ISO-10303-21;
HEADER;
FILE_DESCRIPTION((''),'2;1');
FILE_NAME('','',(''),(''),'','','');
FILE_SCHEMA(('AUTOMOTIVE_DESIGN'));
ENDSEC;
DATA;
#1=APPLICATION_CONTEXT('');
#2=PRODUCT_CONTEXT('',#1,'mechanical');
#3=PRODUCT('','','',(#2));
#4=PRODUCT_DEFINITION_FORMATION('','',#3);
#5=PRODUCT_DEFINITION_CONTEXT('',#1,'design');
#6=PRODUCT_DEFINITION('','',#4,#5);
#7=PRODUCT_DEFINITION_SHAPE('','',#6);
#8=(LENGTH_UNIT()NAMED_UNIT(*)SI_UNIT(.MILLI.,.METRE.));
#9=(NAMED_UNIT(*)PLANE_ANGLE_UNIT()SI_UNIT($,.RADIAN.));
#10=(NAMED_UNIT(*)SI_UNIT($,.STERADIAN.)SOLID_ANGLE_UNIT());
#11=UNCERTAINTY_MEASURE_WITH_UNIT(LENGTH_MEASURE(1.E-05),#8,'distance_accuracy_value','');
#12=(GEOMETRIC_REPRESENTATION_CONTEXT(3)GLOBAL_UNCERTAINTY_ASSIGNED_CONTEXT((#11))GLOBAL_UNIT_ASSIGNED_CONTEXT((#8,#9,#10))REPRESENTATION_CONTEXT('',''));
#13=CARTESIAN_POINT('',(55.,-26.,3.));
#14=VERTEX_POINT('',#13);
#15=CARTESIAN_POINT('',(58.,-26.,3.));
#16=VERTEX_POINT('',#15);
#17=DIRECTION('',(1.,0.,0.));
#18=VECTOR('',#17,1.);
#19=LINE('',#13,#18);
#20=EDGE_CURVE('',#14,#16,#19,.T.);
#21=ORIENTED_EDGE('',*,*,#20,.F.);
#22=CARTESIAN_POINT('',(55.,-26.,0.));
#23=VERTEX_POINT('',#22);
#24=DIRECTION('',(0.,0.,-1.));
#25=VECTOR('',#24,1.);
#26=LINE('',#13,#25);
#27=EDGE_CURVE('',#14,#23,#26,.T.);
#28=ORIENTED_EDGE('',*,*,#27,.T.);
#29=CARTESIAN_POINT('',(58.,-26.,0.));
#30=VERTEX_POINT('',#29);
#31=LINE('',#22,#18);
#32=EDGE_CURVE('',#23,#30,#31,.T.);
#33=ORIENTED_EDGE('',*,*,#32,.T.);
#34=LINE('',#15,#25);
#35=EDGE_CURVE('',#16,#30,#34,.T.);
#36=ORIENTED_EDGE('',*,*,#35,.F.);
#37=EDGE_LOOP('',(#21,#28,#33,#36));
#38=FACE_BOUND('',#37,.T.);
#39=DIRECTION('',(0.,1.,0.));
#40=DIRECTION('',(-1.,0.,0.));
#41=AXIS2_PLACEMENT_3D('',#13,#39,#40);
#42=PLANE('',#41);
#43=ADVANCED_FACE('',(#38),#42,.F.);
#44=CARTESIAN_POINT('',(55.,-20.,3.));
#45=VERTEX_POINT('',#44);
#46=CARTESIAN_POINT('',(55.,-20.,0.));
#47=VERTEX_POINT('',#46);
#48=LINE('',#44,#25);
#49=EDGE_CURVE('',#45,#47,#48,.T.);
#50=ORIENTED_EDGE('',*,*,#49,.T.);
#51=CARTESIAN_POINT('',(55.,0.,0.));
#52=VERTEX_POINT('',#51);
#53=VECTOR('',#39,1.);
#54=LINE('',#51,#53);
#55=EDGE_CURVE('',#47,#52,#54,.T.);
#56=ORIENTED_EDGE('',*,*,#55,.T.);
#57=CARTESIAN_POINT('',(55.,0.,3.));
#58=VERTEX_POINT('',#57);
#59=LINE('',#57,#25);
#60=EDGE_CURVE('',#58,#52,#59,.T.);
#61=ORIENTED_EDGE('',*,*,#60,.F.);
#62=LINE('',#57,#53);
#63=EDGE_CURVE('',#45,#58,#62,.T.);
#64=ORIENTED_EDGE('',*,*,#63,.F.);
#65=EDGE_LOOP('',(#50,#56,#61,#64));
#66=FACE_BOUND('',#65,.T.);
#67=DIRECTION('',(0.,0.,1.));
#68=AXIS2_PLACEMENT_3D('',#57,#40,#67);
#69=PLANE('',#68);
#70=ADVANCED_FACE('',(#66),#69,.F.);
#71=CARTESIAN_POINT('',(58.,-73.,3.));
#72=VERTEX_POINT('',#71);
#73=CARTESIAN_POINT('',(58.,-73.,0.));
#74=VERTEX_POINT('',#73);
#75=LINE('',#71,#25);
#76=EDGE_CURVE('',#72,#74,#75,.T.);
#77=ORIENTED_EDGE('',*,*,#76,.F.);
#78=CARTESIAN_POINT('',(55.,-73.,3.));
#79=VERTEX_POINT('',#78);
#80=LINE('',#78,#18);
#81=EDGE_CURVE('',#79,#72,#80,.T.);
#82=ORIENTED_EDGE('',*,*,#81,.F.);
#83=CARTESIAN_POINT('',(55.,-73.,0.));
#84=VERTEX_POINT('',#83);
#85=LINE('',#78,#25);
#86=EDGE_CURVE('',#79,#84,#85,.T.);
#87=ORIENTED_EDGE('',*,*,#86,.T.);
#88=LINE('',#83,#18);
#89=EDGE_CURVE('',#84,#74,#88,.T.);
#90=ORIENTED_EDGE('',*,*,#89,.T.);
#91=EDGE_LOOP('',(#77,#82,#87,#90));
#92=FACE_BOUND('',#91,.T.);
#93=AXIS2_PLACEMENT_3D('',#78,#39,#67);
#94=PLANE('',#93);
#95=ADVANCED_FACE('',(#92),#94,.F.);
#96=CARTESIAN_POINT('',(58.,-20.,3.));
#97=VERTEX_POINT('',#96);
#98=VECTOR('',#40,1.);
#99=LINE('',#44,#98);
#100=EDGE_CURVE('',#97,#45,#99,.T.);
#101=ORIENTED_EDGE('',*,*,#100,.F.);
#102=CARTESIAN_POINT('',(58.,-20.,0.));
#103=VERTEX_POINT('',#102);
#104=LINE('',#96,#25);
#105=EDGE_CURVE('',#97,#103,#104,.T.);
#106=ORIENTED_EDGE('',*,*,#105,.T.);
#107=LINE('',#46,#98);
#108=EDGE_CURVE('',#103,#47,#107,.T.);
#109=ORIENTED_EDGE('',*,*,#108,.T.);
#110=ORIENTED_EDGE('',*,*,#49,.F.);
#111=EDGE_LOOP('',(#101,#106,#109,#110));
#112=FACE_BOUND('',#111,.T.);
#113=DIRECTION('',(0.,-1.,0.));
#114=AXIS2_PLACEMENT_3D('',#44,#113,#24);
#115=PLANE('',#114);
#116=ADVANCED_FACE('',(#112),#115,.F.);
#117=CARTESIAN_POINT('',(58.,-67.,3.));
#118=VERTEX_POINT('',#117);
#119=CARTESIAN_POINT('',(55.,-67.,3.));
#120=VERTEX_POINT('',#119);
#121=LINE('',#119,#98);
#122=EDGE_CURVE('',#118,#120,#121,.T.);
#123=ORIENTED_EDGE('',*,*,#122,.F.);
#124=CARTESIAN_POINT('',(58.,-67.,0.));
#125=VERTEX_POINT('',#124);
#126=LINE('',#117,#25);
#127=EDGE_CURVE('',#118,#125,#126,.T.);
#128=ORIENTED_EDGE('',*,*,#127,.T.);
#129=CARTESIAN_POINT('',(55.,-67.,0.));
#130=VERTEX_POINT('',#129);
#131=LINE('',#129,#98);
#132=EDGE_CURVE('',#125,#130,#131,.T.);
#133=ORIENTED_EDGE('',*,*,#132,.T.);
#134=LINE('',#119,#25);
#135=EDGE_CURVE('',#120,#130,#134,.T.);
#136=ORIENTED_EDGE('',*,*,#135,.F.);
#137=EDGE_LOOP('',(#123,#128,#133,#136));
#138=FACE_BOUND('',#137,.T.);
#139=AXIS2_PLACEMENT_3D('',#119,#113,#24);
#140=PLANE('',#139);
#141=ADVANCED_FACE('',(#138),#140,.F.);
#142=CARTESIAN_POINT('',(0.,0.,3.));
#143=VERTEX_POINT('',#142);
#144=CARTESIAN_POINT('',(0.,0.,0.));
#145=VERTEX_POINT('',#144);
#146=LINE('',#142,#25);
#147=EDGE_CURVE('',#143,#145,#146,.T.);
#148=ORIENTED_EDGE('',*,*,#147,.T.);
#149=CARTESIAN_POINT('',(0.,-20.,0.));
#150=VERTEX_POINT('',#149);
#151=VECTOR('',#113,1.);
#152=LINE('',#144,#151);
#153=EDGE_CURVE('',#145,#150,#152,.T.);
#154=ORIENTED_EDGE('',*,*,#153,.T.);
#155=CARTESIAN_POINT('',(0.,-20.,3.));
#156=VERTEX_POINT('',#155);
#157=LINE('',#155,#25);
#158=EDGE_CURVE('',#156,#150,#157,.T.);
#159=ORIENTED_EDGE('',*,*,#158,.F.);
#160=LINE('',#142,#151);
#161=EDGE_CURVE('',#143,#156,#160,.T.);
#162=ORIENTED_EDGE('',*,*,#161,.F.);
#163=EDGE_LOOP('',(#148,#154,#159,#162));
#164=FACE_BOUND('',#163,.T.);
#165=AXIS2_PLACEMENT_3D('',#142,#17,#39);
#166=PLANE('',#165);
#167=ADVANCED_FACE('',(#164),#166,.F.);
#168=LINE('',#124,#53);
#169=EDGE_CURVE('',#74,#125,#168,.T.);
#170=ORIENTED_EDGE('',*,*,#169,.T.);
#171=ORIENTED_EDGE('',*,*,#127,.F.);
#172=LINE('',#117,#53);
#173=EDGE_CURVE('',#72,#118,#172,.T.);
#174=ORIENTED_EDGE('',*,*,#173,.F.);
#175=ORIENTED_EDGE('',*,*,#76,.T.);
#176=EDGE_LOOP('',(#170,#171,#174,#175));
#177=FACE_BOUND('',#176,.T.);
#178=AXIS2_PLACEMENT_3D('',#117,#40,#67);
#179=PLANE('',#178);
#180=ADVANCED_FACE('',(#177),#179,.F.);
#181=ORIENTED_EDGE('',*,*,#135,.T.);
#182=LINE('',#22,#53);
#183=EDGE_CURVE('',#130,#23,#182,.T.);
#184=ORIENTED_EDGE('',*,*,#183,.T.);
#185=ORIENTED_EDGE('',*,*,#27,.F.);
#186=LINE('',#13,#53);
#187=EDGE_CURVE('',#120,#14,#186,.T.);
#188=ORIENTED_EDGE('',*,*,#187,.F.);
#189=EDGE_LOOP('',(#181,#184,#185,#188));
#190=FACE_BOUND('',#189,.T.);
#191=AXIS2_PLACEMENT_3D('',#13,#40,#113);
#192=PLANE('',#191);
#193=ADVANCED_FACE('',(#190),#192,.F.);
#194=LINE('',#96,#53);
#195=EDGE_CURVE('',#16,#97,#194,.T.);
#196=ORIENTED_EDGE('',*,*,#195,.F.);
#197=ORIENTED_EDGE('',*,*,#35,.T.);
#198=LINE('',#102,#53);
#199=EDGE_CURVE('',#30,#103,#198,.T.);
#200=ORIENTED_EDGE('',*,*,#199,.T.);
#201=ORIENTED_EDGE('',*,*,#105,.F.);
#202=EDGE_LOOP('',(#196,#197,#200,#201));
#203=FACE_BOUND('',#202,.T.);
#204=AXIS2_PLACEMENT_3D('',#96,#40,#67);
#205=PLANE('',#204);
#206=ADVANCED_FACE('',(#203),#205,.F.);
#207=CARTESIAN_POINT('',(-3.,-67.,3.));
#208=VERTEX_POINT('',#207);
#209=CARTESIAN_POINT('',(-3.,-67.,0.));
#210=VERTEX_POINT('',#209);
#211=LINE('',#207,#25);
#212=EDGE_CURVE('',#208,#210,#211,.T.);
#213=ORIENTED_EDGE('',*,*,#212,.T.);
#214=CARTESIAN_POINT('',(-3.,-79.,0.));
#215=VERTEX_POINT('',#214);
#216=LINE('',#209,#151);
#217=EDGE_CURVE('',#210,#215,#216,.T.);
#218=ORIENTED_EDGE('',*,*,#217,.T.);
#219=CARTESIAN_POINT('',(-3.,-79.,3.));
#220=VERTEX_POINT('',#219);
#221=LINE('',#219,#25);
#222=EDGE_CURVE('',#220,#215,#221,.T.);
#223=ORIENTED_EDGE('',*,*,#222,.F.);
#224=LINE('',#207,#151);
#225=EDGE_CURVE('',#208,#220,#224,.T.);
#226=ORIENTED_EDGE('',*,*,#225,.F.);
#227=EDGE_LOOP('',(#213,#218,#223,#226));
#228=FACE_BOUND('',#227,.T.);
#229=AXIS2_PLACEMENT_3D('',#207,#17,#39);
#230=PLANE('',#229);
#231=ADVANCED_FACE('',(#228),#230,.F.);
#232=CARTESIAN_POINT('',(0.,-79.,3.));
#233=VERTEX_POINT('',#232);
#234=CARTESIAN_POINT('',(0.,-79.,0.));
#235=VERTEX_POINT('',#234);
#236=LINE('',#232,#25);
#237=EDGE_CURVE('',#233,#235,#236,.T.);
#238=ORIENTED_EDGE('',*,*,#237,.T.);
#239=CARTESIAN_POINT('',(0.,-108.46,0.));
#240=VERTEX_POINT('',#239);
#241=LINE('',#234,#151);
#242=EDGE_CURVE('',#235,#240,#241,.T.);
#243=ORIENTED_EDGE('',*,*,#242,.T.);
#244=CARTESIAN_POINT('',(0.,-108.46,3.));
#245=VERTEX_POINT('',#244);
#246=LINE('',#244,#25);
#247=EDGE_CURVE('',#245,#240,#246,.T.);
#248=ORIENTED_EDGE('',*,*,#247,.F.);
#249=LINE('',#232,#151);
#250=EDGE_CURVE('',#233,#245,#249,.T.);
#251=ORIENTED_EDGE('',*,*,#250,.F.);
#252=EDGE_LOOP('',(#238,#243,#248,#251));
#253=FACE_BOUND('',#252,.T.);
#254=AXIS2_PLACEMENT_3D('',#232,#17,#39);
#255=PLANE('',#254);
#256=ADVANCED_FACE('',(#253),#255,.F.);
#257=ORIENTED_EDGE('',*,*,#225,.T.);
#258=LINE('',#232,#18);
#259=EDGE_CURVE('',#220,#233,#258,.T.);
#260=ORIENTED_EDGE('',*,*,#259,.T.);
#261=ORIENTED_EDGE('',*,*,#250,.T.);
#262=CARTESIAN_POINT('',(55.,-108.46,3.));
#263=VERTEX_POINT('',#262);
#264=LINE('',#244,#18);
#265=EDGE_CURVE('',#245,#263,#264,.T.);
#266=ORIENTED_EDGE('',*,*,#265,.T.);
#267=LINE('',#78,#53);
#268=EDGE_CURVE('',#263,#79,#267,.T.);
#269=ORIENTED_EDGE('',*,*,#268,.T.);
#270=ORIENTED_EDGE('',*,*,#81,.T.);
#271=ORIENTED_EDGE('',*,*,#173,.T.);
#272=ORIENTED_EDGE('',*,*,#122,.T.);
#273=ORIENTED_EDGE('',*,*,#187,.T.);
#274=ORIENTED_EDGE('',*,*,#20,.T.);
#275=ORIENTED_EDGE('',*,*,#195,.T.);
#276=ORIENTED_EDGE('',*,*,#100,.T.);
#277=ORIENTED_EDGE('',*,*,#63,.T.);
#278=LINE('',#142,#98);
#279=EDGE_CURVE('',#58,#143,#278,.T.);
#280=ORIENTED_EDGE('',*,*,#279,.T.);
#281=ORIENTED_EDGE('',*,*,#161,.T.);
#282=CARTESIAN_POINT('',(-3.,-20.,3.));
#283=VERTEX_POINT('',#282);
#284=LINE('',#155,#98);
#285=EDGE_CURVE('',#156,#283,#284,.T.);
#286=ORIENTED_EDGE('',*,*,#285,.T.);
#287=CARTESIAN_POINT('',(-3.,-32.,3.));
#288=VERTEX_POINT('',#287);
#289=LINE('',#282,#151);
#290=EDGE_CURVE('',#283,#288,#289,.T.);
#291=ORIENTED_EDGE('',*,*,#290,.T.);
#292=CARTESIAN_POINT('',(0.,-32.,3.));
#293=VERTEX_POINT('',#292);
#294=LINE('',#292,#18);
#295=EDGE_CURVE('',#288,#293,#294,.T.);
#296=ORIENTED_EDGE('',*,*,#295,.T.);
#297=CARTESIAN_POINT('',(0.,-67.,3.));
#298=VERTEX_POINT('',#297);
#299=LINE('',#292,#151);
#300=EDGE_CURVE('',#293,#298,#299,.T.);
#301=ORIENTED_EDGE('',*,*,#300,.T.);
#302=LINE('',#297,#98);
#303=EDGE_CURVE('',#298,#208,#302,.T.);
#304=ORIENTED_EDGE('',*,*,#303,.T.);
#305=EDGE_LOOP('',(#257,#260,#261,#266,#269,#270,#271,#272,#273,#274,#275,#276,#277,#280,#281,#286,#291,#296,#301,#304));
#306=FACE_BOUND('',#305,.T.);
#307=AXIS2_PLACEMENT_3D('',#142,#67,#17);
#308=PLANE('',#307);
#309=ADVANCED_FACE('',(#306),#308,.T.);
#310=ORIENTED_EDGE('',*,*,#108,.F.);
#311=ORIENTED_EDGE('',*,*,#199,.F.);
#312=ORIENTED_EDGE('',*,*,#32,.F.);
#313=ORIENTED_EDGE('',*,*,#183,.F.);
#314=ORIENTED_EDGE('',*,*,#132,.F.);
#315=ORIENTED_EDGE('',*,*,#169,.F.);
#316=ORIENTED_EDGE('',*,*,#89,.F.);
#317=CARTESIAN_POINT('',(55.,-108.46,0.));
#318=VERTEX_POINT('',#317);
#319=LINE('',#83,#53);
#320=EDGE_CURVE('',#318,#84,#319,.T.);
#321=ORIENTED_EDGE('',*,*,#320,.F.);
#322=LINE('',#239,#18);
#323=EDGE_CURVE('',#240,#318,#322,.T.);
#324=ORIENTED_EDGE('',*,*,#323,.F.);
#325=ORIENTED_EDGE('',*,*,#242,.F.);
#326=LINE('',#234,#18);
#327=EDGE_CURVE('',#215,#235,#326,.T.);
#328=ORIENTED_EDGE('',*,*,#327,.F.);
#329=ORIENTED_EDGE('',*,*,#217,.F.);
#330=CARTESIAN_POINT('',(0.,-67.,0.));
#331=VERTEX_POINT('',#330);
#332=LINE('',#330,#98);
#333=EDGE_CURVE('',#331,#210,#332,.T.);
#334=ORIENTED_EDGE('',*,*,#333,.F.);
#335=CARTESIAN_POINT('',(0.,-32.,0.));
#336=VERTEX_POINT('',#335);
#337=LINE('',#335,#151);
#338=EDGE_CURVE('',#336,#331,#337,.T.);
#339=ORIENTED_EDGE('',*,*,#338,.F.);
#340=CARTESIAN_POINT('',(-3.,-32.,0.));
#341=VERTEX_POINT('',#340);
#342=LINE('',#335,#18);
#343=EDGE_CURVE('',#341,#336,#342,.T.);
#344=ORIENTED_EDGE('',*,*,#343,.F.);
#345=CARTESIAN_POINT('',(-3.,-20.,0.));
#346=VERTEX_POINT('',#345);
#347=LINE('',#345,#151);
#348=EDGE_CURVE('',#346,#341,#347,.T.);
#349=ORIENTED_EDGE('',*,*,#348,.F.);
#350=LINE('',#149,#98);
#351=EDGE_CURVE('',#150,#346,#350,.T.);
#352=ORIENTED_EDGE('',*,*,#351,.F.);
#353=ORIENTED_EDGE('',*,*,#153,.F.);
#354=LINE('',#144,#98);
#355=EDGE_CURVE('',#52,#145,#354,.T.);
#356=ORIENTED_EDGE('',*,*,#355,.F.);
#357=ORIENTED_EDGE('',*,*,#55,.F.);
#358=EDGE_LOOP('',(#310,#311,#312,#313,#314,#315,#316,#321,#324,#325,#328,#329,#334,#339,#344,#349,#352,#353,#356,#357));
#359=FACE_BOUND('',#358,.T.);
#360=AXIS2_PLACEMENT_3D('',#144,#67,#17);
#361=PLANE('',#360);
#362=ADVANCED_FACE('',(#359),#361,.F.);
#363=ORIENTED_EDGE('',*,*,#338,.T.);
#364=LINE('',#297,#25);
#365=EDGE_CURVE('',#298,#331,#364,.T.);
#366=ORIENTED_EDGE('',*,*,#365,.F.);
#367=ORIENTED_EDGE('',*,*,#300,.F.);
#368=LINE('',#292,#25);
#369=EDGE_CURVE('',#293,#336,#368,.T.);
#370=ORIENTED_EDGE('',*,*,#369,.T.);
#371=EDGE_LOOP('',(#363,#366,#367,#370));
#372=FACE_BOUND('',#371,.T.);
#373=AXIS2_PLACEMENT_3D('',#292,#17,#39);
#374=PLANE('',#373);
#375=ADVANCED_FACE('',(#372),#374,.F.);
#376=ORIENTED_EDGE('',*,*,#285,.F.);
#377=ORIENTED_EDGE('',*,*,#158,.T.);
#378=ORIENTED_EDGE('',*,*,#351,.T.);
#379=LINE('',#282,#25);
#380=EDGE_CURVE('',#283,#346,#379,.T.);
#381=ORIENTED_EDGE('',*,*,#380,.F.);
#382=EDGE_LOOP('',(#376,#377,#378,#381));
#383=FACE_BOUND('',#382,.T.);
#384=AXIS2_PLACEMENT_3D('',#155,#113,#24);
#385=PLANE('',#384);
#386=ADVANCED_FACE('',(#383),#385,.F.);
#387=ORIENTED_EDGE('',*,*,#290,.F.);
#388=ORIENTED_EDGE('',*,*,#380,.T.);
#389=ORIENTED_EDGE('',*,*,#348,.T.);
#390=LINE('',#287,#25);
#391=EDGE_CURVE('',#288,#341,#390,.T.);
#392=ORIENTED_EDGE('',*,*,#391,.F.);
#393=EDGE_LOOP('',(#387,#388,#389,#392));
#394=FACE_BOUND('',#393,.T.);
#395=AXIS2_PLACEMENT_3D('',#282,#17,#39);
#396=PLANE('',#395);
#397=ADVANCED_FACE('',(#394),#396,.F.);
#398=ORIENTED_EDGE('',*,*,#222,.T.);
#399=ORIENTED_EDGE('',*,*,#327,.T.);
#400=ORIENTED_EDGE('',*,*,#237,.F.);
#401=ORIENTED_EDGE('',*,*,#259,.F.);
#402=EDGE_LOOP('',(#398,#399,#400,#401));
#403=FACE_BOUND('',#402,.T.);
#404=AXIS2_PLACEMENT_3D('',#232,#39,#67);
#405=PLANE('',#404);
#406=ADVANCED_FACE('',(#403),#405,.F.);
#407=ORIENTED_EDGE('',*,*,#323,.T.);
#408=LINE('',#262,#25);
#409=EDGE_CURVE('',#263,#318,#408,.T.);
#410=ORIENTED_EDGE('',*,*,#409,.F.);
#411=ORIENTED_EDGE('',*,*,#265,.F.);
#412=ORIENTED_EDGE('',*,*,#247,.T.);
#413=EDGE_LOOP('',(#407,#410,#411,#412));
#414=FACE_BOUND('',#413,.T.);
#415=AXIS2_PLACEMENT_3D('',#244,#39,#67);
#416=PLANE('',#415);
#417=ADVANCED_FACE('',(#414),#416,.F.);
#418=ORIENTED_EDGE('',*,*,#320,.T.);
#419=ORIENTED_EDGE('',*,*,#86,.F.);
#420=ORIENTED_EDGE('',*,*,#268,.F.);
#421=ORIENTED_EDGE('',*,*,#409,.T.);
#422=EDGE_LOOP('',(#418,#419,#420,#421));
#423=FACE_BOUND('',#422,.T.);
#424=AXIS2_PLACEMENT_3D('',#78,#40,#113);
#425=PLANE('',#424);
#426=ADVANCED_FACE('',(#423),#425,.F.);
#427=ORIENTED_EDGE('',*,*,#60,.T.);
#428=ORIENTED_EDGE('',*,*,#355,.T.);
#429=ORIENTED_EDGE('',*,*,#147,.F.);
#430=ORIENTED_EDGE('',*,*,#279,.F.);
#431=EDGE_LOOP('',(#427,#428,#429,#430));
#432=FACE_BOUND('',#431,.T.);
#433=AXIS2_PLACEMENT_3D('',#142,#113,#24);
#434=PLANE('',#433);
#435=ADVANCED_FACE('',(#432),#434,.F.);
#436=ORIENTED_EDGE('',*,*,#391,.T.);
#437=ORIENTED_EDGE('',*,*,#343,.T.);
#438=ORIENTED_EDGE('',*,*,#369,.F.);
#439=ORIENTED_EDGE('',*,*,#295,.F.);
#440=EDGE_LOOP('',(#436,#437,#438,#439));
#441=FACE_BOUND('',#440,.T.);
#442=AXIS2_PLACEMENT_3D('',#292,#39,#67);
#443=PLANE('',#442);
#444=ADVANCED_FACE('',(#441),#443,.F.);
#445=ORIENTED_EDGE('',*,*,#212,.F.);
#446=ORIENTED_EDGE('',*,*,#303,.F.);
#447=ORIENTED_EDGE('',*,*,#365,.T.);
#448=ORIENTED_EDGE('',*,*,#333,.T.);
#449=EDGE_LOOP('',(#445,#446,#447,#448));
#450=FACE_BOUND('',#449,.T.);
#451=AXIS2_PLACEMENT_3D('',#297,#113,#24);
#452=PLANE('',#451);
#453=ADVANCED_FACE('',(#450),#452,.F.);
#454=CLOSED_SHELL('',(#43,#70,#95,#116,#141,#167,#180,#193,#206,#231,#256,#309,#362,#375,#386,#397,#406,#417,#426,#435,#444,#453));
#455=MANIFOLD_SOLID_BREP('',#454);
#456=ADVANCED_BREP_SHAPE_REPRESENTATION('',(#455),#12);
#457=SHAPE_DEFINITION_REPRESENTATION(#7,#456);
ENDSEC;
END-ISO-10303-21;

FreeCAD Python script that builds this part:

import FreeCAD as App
import Part
import Sketcher

doc = App.newDocument("Part")
body = doc.addObject("PartDesign::Body", "Body")

# Sketch on XY plane
sketch1 = body.newObject("Sketcher::SketchObject", "Sketch")
sketch1.AttachmentSupport = (doc.getObject("XY_Plane"), [""])
sketch1.MapMode = "FlatFace"
sketch1.addGeometry([
    Part.LineSegment(App.Vector(55, 0, 0), App.Vector(0, 0, 0)),  # 0
    Part.LineSegment(App.Vector(0, 0, 0), App.Vector(0, -20, 0)),  # 1
    Part.LineSegment(App.Vector(0, -20, 0), App.Vector(-3, -20, 0)),  # 2
    Part.LineSegment(App.Vector(-3, -20, 0), App.Vector(-3, -32, 0)),  # 3
    Part.LineSegment(App.Vector(-3, -32, 0), App.Vector(0, -32, 0)),  # 4
    Part.LineSegment(App.Vector(0, -32, 0), App.Vector(0, -67, 0)),  # 5
    Part.LineSegment(App.Vector(0, -67, 0), App.Vector(-3, -67, 0)),  # 6
    Part.LineSegment(App.Vector(-3, -67, 0), App.Vector(-3, -79, 0)),  # 7
    Part.LineSegment(App.Vector(-3, -79, 0), App.Vector(0, -79, 0)),  # 8
    Part.LineSegment(App.Vector(0, -79, 0), App.Vector(0, -108.5, 0)),  # 9
    Part.LineSegment(App.Vector(0, -108.5, 0), App.Vector(55, -108.5, 0)),  # 10
    Part.LineSegment(App.Vector(55, -108.5, 0), App.Vector(55, -73, 0)),  # 11
    Part.LineSegment(App.Vector(55, -73, 0), App.Vector(58, -73, 0)),  # 12
    Part.LineSegment(App.Vector(58, -73, 0), App.Vector(58, -67, 0)),  # 13
    Part.LineSegment(App.Vector(58, -67, 0), App.Vector(55, -67, 0)),  # 14
    Part.LineSegment(App.Vector(55, -67, 0), App.Vector(55, -26, 0)),  # 15
    Part.LineSegment(App.Vector(55, -26, 0), App.Vector(58, -26, 0)),  # 16
    Part.LineSegment(App.Vector(58, -26, 0), App.Vector(58, -20, 0)),  # 17
    Part.LineSegment(App.Vector(58, -20, 0), App.Vector(55, -20, 0)),  # 18
    Part.LineSegment(App.Vector(55, -20, 0), App.Vector(55, 0, 0)),  # 19
], False)
sketch1.addConstraint([
    Sketcher.Constraint("Coincident", 0, 2, 1, 1),
    Sketcher.Constraint("Coincident", 1, 2, 2, 1),
    Sketcher.Constraint("Coincident", 2, 2, 3, 1),
    Sketcher.Constraint("Coincident", 3, 2, 4, 1),
    Sketcher.Constraint("Coincident", 4, 2, 5, 1),
    Sketcher.Constraint("Coincident", 5, 2, 6, 1),
    Sketcher.Constraint("Coincident", 6, 2, 7, 1),
    Sketcher.Constraint("Coincident", 7, 2, 8, 1),
    Sketcher.Constraint("Coincident", 8, 2, 9, 1),
    Sketcher.Constraint("Coincident", 9, 2, 10, 1),
    Sketcher.Constraint("Coincident", 10, 2, 11, 1),
    Sketcher.Constraint("Coincident", 11, 2, 12, 1),
    Sketcher.Constraint("Coincident", 12, 2, 13, 1),
    Sketcher.Constraint("Coincident", 13, 2, 14, 1),
    Sketcher.Constraint("Coincident", 14, 2, 15, 1),
    Sketcher.Constraint("Coincident", 15, 2, 16, 1),
    Sketcher.Constraint("Coincident", 16, 2, 17, 1),
    Sketcher.Constraint("Coincident", 17, 2, 18, 1),
    Sketcher.Constraint("Coincident", 18, 2, 19, 1),
    Sketcher.Constraint("Coincident", 19, 2, 0, 1),
    Sketcher.Constraint("Horizontal", 0),
    Sketcher.Constraint("Vertical", 1),
    Sketcher.Constraint("Horizontal", 2),
    Sketcher.Constraint("Vertical", 3),
    Sketcher.Constraint("Horizontal", 4),
    Sketcher.Constraint("Vertical", 5),
    Sketcher.Constraint("Horizontal", 6),
    Sketcher.Constraint("Vertical", 7),
    Sketcher.Constraint("Horizontal", 8),
    Sketcher.Constraint("Vertical", 9),
    Sketcher.Constraint("Horizontal", 10),
    Sketcher.Constraint("Vertical", 11),
    Sketcher.Constraint("Horizontal", 12),
    Sketcher.Constraint("Vertical", 13),
    Sketcher.Constraint("Horizontal", 14),
    Sketcher.Constraint("Vertical", 15),
    Sketcher.Constraint("Horizontal", 16),
    Sketcher.Constraint("Vertical", 17),
    Sketcher.Constraint("Horizontal", 18),
    Sketcher.Constraint("Vertical", 19),
    Sketcher.Constraint("Coincident", 0, 2, -1, 1),
    Sketcher.Constraint("PointOnObject", 4, 2, -2),
    Sketcher.Constraint("PointOnObject", 8, 2, -2),
    Sketcher.Constraint("Horizontal", 6, 2, 13, 2),
    Sketcher.Constraint("Horizontal", 2, 2, 17, 2),
    Sketcher.Constraint("Vertical", 3, 2, 6, 2),
    Sketcher.Constraint("Vertical", 11, 2, 14, 2),
    Sketcher.Constraint("Vertical", 13, 2, 16, 2),
    Sketcher.Constraint("Vertical", 15, 2, 18, 2),
    Sketcher.Constraint("Equal", 8, 12),
    Sketcher.Constraint("Equal", 3, 7),
    Sketcher.Constraint("Equal", 13, 17),
    Sketcher.Constraint("DistanceX", 0, 2, 0, 1, 55.0),
    Sketcher.Constraint("DistanceX", 2, 2, 2, 1, 3.0),
    Sketcher.Constraint("DistanceY", 1, 2, 1, 1, 20.0),
    Sketcher.Constraint("DistanceY", 3, 2, 3, 1, 12.0),
    Sketcher.Constraint("DistanceY", 5, 2, 5, 1, 35.0),
    Sketcher.Constraint("DistanceY", 13, 1, 13, 2, 6.0),
    Sketcher.Constraint("DistanceY", 9, 2, 9, 1, 29.46),
])
pad1 = body.newObject("PartDesign::Pad", "Pad")
pad1.Profile = sketch1
pad1.Length = 3

doc.recompute()
